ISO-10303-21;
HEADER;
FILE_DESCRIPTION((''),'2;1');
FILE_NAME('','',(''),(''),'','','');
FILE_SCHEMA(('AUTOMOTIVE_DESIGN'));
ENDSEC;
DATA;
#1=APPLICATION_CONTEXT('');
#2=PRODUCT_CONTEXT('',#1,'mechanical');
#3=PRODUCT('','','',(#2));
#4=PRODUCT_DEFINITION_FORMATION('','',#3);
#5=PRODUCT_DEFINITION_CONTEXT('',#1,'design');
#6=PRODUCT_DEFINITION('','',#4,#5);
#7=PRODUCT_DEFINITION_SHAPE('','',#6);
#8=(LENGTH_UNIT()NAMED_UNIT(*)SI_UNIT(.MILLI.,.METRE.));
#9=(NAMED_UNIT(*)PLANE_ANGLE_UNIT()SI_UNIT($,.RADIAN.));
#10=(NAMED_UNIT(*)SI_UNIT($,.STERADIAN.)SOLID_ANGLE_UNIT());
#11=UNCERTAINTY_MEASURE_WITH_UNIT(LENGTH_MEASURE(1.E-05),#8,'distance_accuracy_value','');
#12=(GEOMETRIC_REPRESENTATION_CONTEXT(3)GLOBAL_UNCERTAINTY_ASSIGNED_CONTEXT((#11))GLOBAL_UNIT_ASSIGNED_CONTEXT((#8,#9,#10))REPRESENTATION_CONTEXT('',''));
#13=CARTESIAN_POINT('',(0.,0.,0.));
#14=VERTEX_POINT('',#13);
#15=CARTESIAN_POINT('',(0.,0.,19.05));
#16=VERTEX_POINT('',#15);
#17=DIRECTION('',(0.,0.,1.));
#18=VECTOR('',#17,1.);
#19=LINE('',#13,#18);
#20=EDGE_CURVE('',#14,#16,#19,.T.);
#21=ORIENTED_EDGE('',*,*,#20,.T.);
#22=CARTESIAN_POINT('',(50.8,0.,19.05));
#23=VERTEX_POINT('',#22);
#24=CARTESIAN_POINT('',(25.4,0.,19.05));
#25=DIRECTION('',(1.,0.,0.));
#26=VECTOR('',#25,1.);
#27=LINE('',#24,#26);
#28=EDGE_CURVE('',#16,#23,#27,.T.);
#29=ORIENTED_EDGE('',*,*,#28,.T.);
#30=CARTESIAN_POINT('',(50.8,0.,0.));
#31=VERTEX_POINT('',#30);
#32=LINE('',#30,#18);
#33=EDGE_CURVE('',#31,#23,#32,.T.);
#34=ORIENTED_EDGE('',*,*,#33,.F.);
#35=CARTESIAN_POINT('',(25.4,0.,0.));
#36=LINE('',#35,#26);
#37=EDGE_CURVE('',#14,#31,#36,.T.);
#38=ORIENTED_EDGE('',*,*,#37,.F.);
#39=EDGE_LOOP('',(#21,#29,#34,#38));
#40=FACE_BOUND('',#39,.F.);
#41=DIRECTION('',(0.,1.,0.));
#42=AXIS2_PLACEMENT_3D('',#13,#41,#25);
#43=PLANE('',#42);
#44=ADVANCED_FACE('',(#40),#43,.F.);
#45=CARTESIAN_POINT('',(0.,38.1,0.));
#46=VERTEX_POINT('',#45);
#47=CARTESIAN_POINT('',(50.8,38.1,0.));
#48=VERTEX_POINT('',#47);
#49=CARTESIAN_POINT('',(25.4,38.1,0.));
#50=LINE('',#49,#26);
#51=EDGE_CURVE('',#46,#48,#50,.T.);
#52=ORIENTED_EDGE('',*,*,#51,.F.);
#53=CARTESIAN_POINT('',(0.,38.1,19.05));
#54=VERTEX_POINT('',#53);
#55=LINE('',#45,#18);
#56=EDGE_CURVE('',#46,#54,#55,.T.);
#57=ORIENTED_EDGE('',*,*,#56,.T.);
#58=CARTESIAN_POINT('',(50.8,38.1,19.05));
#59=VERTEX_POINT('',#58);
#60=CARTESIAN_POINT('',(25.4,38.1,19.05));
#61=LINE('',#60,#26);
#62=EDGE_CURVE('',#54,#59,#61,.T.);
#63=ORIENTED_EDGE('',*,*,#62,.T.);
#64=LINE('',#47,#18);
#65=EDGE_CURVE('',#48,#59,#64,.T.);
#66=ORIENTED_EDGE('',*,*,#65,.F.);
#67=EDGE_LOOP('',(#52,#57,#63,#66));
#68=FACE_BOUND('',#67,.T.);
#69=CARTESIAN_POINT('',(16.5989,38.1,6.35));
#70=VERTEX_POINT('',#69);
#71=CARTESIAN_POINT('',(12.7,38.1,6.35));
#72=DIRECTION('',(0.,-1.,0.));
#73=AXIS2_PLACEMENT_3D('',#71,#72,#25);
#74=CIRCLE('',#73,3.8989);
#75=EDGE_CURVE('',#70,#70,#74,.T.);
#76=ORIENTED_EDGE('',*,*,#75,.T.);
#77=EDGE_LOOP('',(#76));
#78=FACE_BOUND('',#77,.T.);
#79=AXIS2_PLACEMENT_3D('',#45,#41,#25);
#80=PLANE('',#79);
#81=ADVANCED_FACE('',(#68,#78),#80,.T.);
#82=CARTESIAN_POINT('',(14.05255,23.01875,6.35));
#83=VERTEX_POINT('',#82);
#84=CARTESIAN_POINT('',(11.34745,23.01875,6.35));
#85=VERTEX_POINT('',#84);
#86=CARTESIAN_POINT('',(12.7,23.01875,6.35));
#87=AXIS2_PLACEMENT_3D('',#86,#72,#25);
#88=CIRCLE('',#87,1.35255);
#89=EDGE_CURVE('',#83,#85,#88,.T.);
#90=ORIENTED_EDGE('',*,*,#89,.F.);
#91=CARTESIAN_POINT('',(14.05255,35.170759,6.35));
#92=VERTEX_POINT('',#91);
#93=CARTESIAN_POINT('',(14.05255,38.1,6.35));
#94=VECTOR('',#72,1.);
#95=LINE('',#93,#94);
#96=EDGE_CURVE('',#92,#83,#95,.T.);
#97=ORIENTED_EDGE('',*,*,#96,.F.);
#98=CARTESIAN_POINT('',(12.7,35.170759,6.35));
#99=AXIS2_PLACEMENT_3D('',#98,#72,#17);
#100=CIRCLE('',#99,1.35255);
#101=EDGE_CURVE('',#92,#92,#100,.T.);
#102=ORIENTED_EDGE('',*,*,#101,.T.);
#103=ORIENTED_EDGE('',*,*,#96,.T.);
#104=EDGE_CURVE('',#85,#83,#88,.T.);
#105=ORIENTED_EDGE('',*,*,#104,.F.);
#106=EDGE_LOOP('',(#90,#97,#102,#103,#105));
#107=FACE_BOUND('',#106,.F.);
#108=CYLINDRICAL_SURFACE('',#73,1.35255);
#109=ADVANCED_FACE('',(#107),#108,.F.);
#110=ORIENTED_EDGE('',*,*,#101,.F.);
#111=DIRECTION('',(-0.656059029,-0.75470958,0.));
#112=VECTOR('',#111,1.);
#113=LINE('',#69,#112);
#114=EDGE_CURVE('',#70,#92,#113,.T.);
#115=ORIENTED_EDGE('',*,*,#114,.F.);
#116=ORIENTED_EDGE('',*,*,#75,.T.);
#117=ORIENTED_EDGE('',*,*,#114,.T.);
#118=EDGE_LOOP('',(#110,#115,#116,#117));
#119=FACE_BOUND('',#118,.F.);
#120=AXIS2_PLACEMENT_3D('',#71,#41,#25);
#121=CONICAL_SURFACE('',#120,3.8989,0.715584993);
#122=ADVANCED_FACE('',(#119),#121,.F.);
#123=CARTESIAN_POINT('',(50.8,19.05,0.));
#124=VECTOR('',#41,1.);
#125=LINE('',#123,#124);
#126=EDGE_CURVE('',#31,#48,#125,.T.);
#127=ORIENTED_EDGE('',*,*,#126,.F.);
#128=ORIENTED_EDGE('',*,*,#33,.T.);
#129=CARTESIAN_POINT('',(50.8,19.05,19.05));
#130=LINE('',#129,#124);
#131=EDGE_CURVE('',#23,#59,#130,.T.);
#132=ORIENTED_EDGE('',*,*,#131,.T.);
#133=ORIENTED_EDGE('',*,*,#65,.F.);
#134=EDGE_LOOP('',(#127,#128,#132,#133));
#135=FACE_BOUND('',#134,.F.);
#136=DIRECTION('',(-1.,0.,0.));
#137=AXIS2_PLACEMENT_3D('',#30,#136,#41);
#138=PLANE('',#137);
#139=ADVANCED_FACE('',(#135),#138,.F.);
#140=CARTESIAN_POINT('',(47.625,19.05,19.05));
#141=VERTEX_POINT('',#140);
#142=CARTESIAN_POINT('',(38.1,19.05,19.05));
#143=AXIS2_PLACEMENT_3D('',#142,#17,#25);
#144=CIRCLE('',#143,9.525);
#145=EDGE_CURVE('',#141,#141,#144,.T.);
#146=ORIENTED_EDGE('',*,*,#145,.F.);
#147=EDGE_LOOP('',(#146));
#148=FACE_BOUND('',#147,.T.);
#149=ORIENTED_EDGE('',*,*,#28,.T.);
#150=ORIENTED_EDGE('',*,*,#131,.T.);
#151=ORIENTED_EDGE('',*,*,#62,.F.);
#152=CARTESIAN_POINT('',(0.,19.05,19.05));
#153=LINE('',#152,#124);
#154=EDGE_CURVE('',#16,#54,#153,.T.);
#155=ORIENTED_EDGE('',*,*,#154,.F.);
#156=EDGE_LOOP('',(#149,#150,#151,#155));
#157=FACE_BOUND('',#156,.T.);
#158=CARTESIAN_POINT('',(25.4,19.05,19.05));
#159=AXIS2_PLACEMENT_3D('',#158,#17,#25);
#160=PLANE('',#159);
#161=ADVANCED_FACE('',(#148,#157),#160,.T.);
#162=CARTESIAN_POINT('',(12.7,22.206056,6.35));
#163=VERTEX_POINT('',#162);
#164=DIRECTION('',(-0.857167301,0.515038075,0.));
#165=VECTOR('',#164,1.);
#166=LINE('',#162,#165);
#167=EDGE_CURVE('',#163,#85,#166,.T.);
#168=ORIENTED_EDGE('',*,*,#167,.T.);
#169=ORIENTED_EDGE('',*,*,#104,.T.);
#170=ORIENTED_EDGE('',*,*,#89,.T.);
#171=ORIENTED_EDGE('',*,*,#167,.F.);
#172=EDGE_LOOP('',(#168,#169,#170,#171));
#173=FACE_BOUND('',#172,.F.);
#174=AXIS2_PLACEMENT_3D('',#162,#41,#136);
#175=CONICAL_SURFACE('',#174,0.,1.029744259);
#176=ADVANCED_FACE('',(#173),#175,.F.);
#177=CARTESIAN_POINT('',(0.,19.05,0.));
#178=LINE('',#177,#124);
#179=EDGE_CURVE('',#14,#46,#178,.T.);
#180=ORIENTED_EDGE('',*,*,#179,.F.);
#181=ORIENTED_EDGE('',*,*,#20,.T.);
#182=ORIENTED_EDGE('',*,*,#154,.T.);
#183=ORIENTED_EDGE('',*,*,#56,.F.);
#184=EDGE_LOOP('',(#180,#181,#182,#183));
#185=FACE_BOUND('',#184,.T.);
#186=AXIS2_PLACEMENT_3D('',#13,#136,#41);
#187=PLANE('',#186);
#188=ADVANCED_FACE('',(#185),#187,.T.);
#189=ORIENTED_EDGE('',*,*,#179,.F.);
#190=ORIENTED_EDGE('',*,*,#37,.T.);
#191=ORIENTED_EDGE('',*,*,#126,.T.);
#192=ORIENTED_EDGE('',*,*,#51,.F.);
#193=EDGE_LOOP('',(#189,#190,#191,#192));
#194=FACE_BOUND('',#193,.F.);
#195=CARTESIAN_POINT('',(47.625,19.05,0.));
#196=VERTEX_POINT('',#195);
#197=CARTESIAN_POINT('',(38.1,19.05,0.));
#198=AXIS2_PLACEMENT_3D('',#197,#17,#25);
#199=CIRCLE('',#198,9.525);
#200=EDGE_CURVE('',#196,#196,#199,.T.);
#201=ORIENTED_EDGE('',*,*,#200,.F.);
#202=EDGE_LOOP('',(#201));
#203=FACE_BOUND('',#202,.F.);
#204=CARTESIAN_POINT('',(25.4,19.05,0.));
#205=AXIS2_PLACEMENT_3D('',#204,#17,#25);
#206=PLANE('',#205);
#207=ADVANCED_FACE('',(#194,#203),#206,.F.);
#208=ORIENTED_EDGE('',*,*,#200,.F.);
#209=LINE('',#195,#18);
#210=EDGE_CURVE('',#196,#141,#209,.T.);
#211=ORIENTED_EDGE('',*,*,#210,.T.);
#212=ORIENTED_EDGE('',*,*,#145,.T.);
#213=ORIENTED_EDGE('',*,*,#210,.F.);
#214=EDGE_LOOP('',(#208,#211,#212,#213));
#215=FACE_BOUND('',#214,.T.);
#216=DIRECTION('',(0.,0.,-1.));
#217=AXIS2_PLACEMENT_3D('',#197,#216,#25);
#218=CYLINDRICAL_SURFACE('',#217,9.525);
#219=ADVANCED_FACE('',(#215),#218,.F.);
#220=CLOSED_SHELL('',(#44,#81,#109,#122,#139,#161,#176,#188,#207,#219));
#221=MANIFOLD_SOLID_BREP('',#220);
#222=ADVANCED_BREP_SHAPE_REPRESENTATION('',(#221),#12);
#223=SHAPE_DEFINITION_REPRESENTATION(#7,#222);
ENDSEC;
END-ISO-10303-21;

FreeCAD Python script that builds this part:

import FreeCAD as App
import Part
import Sketcher
from FreeCAD import Vector
Q = App.Units.Quantity

doc = App.newDocument("Part")
body = doc.addObject("PartDesign::Body", "Body")

# Sketch on XY plane
sketch1 = doc.addObject("Sketcher::SketchObject", "Sketch")
body.addObject(sketch1)
sketch1.AttachmentSupport = (doc.XY_Plane, [""])
sketch1.MapMode = "FlatFace"
sketch1.addGeometry(Part.LineSegment(Vector(0, 38.1, 0), Vector(0, 0, 0)), False)
sketch1.addGeometry(Part.LineSegment(Vector(0, 0, 0), Vector(50.8, 0, 0)), False)
sketch1.addGeometry(Part.LineSegment(Vector(50.8, 0, 0), Vector(50.8, 38.1, 0)), False)
sketch1.addGeometry(Part.LineSegment(Vector(50.8, 38.1, 0), Vector(0, 38.1, 0)), False)
sketch1.addGeometry(Part.Circle(Vector(38.1, 19.05, 0), Vector(0, 0, 1), 9.525), False)
sketch1.addConstraint(Sketcher.Constraint("Coincident", 0, 2, 1, 1))
sketch1.addConstraint(Sketcher.Constraint("Coincident", 1, 2, 2, 1))
sketch1.addConstraint(Sketcher.Constraint("Coincident", 2, 2, 3, 1))
sketch1.addConstraint(Sketcher.Constraint("Coincident", 3, 2, 0, 1))
sketch1.addConstraint(Sketcher.Constraint("Vertical", 0))
sketch1.addConstraint(Sketcher.Constraint("Horizontal", 1))
sketch1.addConstraint(Sketcher.Constraint("Vertical", 2))
sketch1.addConstraint(Sketcher.Constraint("Horizontal", 3))
sketch1.addConstraint(Sketcher.Constraint("Coincident", 0, 2, -1, 1))
sketch1.addConstraint(Sketcher.Constraint("Diameter", 4, Q("0.75 in")))
sketch1.addConstraint(Sketcher.Constraint("DistanceX", 1, 1, 1, 2, Q("2 in")))
sketch1.addConstraint(Sketcher.Constraint("DistanceY", 0, 2, 0, 1, Q("1.5 in")))
sketch1.addConstraint(Sketcher.Constraint("DistanceX", -1, 1, 4, 3, Q("1.5 in")))
sketch1.addConstraint(Sketcher.Constraint("DistanceY", -1, 1, 4, 3, Q("0.75 in")))
pad1 = doc.addObject("PartDesign::Pad", "Pad")
body.addObject(pad1)
pad1.Profile = sketch1
pad1.Length = Q("0.75 in")

# Sketch on XZ plane
sketch2 = doc.addObject("Sketcher::SketchObject", "Sketch001")
body.addObject(sketch2)
sketch2.AttachmentSupport = (doc.XZ_Plane, [""])
sketch2.MapMode = "FlatFace"
sketch2.AttachmentOffset = App.Placement(Vector(0, 0, -1.5 * 25.4), App.Rotation())
sketch2.addGeometry(Part.Circle(Vector(12.7, 6.35, 0), Vector(0, 0, 1), 1.35255), False)
sketch2.addConstraint(Sketcher.Constraint("Diameter", 0, Q("0.1065 in")))
sketch2.addConstraint(Sketcher.Constraint("DistanceX", -1, 1, 0, 3, Q("0.5 in")))
sketch2.addConstraint(Sketcher.Constraint("DistanceY", -1, 1, 0, 3, Q("0.25 in")))
doc.recompute()
hole = doc.addObject("PartDesign::Hole", "Hole")
body.addObject(hole)
hole.Profile = sketch2
hole.ThreadType = "None"
hole.Diameter = Q("0.1065 in")
hole.DepthType = "Dimension"
hole.Depth = Q("0.59375 in")
hole.DrillPoint = "Angled"
hole.DrillPointAngle = 118
hole.HoleCutType = "Countersink"
hole.HoleCutDiameter = Q("0.307 in")
hole.HoleCutCountersinkAngle = 82
hole.Reversed = True

doc.recompute()
